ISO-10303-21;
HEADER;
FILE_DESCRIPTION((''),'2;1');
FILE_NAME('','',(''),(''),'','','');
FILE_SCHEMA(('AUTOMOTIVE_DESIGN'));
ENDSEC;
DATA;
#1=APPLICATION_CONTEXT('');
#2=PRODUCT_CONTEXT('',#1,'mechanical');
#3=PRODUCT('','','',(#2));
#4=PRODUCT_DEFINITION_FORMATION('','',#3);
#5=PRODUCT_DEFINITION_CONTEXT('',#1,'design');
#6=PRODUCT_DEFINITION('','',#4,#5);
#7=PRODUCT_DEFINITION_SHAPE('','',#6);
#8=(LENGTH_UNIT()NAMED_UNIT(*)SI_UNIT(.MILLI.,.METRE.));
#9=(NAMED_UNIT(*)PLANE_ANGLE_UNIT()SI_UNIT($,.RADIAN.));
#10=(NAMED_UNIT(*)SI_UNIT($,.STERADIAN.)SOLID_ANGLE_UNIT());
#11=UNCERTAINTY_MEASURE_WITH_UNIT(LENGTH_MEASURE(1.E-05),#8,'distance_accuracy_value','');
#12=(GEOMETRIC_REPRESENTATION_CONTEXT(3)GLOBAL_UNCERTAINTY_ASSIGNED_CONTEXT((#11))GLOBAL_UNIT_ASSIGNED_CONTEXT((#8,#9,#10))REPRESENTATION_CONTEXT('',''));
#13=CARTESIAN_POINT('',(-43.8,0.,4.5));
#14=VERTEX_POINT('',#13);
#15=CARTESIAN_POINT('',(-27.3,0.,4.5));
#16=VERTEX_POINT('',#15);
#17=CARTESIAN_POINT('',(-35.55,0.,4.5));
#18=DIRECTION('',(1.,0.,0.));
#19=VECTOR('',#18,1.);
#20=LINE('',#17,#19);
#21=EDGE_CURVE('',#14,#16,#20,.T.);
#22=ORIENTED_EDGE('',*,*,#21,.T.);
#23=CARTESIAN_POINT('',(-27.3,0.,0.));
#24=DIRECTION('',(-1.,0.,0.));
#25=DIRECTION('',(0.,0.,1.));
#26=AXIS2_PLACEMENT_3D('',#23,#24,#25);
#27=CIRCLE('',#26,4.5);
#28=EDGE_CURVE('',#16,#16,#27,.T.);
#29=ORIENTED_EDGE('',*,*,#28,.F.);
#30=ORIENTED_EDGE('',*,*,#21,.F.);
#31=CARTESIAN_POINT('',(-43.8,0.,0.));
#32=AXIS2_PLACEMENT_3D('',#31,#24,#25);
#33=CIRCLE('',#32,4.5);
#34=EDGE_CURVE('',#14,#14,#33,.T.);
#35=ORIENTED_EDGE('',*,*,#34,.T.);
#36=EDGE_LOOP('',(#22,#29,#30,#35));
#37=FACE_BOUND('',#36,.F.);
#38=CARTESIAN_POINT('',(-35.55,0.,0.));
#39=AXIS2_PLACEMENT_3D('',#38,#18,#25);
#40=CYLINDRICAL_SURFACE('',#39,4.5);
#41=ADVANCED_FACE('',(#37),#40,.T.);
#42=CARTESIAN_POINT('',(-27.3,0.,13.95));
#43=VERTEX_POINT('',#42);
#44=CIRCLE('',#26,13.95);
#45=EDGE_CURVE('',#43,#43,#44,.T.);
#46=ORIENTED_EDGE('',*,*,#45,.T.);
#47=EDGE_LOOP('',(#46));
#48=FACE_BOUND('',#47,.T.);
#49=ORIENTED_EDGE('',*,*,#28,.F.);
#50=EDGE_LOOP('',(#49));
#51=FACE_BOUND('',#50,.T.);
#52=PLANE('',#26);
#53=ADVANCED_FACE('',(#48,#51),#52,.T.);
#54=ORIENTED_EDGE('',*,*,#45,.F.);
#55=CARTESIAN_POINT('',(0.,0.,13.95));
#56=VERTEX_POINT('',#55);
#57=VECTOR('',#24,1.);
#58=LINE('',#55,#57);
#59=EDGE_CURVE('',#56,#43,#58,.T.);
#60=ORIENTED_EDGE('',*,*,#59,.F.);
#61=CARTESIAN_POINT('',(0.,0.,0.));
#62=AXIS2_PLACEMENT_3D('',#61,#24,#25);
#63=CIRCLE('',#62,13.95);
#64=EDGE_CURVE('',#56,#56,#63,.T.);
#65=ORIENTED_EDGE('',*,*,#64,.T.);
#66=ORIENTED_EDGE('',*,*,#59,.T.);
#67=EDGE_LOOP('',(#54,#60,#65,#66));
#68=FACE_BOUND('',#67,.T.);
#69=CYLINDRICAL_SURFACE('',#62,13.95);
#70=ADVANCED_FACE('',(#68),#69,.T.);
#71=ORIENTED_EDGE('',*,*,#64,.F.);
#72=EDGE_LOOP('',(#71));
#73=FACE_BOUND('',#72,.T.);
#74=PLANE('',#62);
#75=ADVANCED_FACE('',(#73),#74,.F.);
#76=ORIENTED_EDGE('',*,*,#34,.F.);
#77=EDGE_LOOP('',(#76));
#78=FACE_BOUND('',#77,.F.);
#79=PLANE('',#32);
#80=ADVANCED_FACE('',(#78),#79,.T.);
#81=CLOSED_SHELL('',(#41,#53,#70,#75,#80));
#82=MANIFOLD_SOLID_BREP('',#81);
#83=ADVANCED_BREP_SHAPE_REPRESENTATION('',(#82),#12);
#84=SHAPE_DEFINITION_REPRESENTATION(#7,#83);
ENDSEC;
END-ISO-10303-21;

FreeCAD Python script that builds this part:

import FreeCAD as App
import Part
import Sketcher

V = App.Vector

doc = App.newDocument("Part")
body = doc.addObject("PartDesign::Body", "Body")

# Sketch on XZ plane
sketch1 = body.newObject("Sketcher::SketchObject", "Sketch")
sketch1.AttachmentSupport = (doc.getObject("XZ_Plane"), [""])
sketch1.MapMode = "FlatFace"
sketch1.addGeometry(Part.LineSegment(V(0, 13.9, 0), V(-27.3, 13.9, 0)), False)
sketch1.addGeometry(Part.LineSegment(V(-27.3, 13.9, 0), V(-27.3, 4.5, 0)), False)
sketch1.addGeometry(Part.LineSegment(V(-27.3, 4.5, 0), V(-43.8, 4.5, 0)), False)
sketch1.addGeometry(Part.LineSegment(V(-43.8, 4.5, 0), V(-43.8, 0, 0)), False)
sketch1.addGeometry(Part.LineSegment(V(-43.8, 0, 0), V(0, 0, 0)), False)
sketch1.addGeometry(Part.LineSegment(V(0, 0, 0), V(0, 13.9, 0)), False)
sketch1.addConstraint(Sketcher.Constraint("Coincident", 0, 2, 1, 1))
sketch1.addConstraint(Sketcher.Constraint("Coincident", 1, 2, 2, 1))
sketch1.addConstraint(Sketcher.Constraint("Coincident", 2, 2, 3, 1))
sketch1.addConstraint(Sketcher.Constraint("Coincident", 3, 2, 4, 1))
sketch1.addConstraint(Sketcher.Constraint("Coincident", 4, 2, 5, 1))
sketch1.addConstraint(Sketcher.Constraint("Coincident", 5, 2, 0, 1))
sketch1.addConstraint(Sketcher.Constraint("Horizontal", 0))
sketch1.addConstraint(Sketcher.Constraint("Vertical", 1))
sketch1.addConstraint(Sketcher.Constraint("Horizontal", 2))
sketch1.addConstraint(Sketcher.Constraint("Vertical", 3))
sketch1.addConstraint(Sketcher.Constraint("Horizontal", 4))
sketch1.addConstraint(Sketcher.Constraint("Vertical", 5))
sketch1.addConstraint(Sketcher.Constraint("Coincident", 4, 2, -1, 1))
sketch1.addConstraint(Sketcher.Constraint("DistanceX", 0, 2, 0, 1, 27.3))
sketch1.addConstraint(Sketcher.Constraint("DistanceX", 2, 2, 2, 1, 16.5))
sketch1.addConstraint(Sketcher.Constraint("DistanceY", 3, 2, 3, 1, 4.5))
sketch1.addConstraint(Sketcher.Constraint("DistanceY", 1, 2, 1, 1, 9.45))
revolution = body.newObject("PartDesign::Revolution", "Revolution")
revolution.Profile = sketch1
revolution.ReferenceAxis = (sketch1, ["H_Axis"])
revolution.Angle = 360

doc.recompute()
